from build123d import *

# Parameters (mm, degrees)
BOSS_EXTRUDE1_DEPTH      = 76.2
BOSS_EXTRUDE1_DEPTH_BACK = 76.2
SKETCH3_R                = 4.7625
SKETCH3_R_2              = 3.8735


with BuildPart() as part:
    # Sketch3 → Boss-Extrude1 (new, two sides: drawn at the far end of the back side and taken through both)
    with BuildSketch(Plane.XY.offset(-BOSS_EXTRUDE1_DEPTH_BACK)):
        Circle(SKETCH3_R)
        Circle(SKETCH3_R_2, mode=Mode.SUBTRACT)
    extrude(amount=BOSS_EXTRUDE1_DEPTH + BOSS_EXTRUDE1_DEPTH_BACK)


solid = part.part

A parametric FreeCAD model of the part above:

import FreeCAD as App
import Part
import Sketcher
from FreeCAD import Vector
Q = App.Units.Quantity

doc = App.newDocument("Part")
body = doc.addObject("PartDesign::Body", "Body")

# Sketch on XY plane
sketch1 = body.newObject("Sketcher::SketchObject", "Sketch")
sketch1.AttachmentSupport = (doc.getObject("XY_Plane"), [""])
sketch1.MapMode = "FlatFace"
sketch1.addGeometry(Part.Circle(Vector(0, 0, 0), Vector(0, 0, 1), 4.7625), False)
sketch1.addGeometry(Part.Circle(Vector(0, 0, 0), Vector(0, 0, 1), 3.8735), False)
sketch1.addConstraint(Sketcher.Constraint("Coincident", 0, 3, -1, 1))
sketch1.addConstraint(Sketcher.Constraint("Coincident", 1, 3, -1, 1))
sketch1.addConstraint(Sketcher.Constraint("Diameter", 0, Q("0.375 in")))
sketch1.addConstraint(Sketcher.Constraint("Diameter", 1, Q("0.305 in")))
pad1 = body.newObject("PartDesign::Pad", "Pad")
pad1.Profile = sketch1
pad1.Type = "TwoLengths"
pad1.Length = Q("3 in")
pad1.Length2 = Q("3 in")

doc.recompute()
